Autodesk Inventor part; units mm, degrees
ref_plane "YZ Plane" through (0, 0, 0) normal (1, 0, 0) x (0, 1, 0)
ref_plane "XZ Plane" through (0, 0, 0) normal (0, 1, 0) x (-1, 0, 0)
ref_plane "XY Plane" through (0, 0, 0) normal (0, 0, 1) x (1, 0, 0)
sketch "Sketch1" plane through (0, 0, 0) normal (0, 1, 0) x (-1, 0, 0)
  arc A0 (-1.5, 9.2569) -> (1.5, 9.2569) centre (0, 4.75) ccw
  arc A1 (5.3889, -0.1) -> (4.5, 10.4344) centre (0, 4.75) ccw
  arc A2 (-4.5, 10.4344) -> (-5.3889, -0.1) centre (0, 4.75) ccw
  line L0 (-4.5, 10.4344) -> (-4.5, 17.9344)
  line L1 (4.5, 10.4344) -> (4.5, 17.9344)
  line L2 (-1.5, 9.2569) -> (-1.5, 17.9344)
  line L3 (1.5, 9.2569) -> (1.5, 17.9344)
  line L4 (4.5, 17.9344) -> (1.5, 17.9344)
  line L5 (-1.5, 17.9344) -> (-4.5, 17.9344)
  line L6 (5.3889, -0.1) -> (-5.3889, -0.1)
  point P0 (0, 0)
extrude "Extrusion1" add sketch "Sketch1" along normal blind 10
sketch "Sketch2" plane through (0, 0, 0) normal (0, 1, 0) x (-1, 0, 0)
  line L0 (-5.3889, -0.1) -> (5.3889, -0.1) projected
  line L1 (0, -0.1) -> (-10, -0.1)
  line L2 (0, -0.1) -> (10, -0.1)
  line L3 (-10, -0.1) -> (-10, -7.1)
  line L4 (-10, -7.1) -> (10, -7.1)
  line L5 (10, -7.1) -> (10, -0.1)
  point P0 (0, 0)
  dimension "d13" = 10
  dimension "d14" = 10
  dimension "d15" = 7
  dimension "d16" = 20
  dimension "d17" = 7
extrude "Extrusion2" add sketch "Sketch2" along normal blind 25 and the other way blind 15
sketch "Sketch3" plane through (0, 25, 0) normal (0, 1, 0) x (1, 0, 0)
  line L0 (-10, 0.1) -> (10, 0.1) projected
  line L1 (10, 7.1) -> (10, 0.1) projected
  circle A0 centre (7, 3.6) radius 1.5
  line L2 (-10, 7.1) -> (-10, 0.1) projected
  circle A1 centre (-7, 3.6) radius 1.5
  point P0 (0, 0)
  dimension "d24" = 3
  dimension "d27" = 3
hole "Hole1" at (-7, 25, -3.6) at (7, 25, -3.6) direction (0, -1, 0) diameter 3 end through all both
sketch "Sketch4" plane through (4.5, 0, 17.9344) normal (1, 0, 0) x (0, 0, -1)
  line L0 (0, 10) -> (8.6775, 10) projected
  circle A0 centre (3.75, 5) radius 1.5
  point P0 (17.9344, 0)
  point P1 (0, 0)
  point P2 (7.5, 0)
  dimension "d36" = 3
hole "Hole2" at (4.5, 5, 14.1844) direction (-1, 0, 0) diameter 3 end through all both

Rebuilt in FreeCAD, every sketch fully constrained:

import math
import FreeCAD as App
import Part
import Sketcher

V = App.Vector

doc = App.newDocument("Part")
body = doc.addObject("PartDesign::Body", "Body")

# Sketch on XZ plane
sketch1 = body.newObject("Sketcher::SketchObject", "Sketch")
sketch1.AttachmentSupport = (doc.getObject("XZ_Plane"), [""])
sketch1.MapMode = "FlatFace"
sketch1.addGeometry([
    Part.ArcOfCircle(Part.Circle(V(0, 4.75, 0), V(0, 0, 1), 4.749963), math.radians(108.408629), math.radians(431.591371)),  # 0
    Part.LineSegment(V(1.5, 9.2569, 0), V(1.5, 17.9344, 0)),  # 1
    Part.LineSegment(V(1.5, 17.9344, 0), V(4.5, 17.9344, 0)),  # 2
    Part.LineSegment(V(4.5, 17.9344, 0), V(4.5, 10.4344, 0)),  # 3
    Part.ArcOfCircle(Part.Circle(V(0, 4.75, 0), V(0, 0, 1), 7.250017), math.radians(-41.987154), math.radians(51.633444)),  # 4
    Part.LineSegment(V(5.3889, -0.1, 0), V(-5.3889, -0.1, 0)),  # 5
    Part.ArcOfCircle(Part.Circle(V(0, 4.75, 0), V(0, 0, 1), 7.249993), math.radians(128.366556), math.radians(221.987154)),  # 6
    Part.LineSegment(V(-4.5, 10.4344, 0), V(-4.5, 17.9344, 0)),  # 7
    Part.LineSegment(V(-4.5, 17.9344, 0), V(-1.5, 17.9344, 0)),  # 8
    Part.LineSegment(V(-1.5, 17.9344, 0), V(-1.5, 9.2569, 0)),  # 9
], False)
sketch1.addConstraint([
    Sketcher.Constraint("Coincident", 0, 2, 1, 1),
    Sketcher.Constraint("Coincident", 1, 2, 2, 1),
    Sketcher.Constraint("Coincident", 2, 2, 3, 1),
    Sketcher.Constraint("Coincident", 3, 2, 4, 2),
    Sketcher.Constraint("Coincident", 4, 1, 5, 1),
    Sketcher.Constraint("Coincident", 5, 2, 6, 2),
    Sketcher.Constraint("Coincident", 6, 1, 7, 1),
    Sketcher.Constraint("Coincident", 7, 2, 8, 1),
    Sketcher.Constraint("Coincident", 8, 2, 9, 1),
    Sketcher.Constraint("Coincident", 9, 2, 0, 1),
    Sketcher.Constraint("Vertical", 1),
    Sketcher.Constraint("Horizontal", 2),
    Sketcher.Constraint("Vertical", 3),
    Sketcher.Constraint("Horizontal", 5),
    Sketcher.Constraint("Vertical", 7),
    Sketcher.Constraint("Horizontal", 8),
    Sketcher.Constraint("Vertical", 9),
    Sketcher.Constraint("Coincident", 4, 3, 0, 3),
    Sketcher.Constraint("Coincident", 6, 3, 0, 3),
    Sketcher.Constraint("Equal", 4, 6),
    Sketcher.Constraint("Symmetric", 3, 2, 6, 1, -2),
    Sketcher.Constraint("Symmetric", 1, 2, 8, 2, -2),
    Sketcher.Constraint("DistanceX", 2, 1, 2, 2, 3.0),
    Sketcher.Constraint("Radius", 0, 4.75),
    Sketcher.Constraint("Radius", 4, 7.25),
    Sketcher.Constraint("DistanceY", 3, 2, 3, 1, 7.5),
    Sketcher.Constraint("DistanceX", 6, 1, 0, 2, 6.0),
    Sketcher.Constraint("DistanceY", 4, 1, -1, 1, 0.1),
    Sketcher.Constraint("DistanceY", -1, 1, 0, 3, 4.75),
])
pad1 = body.newObject("PartDesign::Pad", "Pad")
pad1.Profile = sketch1
pad1.Length = 10
pad1.Reversed = True

# Sketch on XZ plane
sketch2 = body.newObject("Sketcher::SketchObject", "Sketch001")
sketch2.AttachmentSupport = (doc.getObject("XZ_Plane"), [""])
sketch2.MapMode = "FlatFace"
sketch2.addGeometry([
    Part.LineSegment(V(-10, -0.1, 0), V(10, -0.1, 0)),
    Part.LineSegment(V(10, -0.1, 0), V(10, -7.1, 0)),
    Part.LineSegment(V(10, -7.1, 0), V(-10, -7.1, 0)),
    Part.LineSegment(V(-10, -7.1, 0), V(-10, -0.1, 0)),
], False)
sketch2.addConstraint([
    Sketcher.Constraint("Coincident", 0, 2, 1, 1),
    Sketcher.Constraint("Coincident", 1, 2, 2, 1),
    Sketcher.Constraint("Coincident", 2, 2, 3, 1),
    Sketcher.Constraint("Coincident", 3, 2, 0, 1),
    Sketcher.Constraint("Horizontal", 0),
    Sketcher.Constraint("Vertical", 1),
    Sketcher.Constraint("Horizontal", 2),
    Sketcher.Constraint("Vertical", 3),
    Sketcher.Constraint("DistanceX", 0, 1, 0, 2, 20.0),
    Sketcher.Constraint("DistanceY", 1, 2, 1, 1, 7.0),
    Sketcher.Constraint("DistanceX", -1, 1, 0, 2, 10.0),
    Sketcher.Constraint("DistanceY", 0, 2, -1, 1, 0.1),
])
pad2 = body.newObject("PartDesign::Pad", "Pad001")
pad2.Profile = sketch2
pad2.Type = "TwoLengths"
pad2.Length = 25
pad2.Length2 = 15
pad2.Reversed = True

# Sketch on XZ plane
sketch3 = body.newObject("Sketcher::SketchObject", "Sketch002")
sketch3.AttachmentSupport = (doc.getObject("XZ_Plane"), [""])
sketch3.MapMode = "FlatFace"
sketch3.AttachmentOffset = App.Placement(V(0, 0, -25), App.Rotation())
sketch3.addGeometry([
    Part.Circle(V(-7, -3.6, 0), V(0, 0, 1), 1.5),
    Part.Circle(V(7, -3.6, 0), V(0, 0, 1), 1.5),
], False)
sketch3.addConstraint([
    Sketcher.Constraint("Equal", 0, 1),
    Sketcher.Constraint("Symmetric", 0, 3, 1, 3, -2),
    Sketcher.Constraint("Diameter", 0, 3.0),
    Sketcher.Constraint("DistanceX", 0, 3, -1, 1, 7.0),
    Sketcher.Constraint("DistanceY", 0, 3, -1, 1, 3.6),
])
doc.recompute()
hole = body.newObject("PartDesign::Hole", "Hole")
hole.Profile = sketch3
hole.ThreadType = "None"
hole.Diameter = 3
hole.DepthType = "ThroughAll"
hole.Reversed = True

# Sketch on YZ plane
sketch4 = body.newObject("Sketcher::SketchObject", "Sketch003")
sketch4.AttachmentSupport = (doc.getObject("YZ_Plane"), [""])
sketch4.MapMode = "FlatFace"
sketch4.AttachmentOffset = App.Placement(V(0, 0, 4.5), App.Rotation())
sketch4.addGeometry(Part.Circle(V(5, 14.1844, 0), V(0, 0, 1), 1.5), False)
sketch4.addConstraint([
    Sketcher.Constraint("Diameter", 0, 3.0),
    Sketcher.Constraint("DistanceX", -1, 1, 0, 3, 5.0),
    Sketcher.Constraint("DistanceY", -1, 1, 0, 3, 14.1844),
])
doc.recompute()
hole2 = body.newObject("PartDesign::Hole", "Hole001")
hole2.Profile = sketch4
hole2.ThreadType = "None"
hole2.Diameter = 3
hole2.DepthType = "ThroughAll"

doc.recompute()
